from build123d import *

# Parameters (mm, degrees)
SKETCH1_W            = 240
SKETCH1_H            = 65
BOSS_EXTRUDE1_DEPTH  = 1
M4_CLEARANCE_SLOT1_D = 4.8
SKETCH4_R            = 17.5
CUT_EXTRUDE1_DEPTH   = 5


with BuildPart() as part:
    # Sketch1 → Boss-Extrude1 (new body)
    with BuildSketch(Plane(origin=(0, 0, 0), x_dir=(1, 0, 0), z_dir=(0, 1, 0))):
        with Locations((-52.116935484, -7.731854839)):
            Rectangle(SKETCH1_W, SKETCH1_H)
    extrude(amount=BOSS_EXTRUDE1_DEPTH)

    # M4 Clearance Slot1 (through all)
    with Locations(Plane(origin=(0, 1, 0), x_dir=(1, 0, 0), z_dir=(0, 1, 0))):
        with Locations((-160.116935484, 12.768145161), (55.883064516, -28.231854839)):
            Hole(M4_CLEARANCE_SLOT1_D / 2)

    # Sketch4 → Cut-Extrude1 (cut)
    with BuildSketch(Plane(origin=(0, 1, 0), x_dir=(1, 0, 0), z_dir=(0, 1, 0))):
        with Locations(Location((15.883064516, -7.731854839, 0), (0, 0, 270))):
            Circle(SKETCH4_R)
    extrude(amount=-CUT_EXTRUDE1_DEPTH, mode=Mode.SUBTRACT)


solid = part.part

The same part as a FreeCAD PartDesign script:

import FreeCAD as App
import Part
import Sketcher
Q = App.Units.Quantity


def add_polygon(sketch, points):
    """Adds a closed chain of lines whose ends are joined by coincident constraints."""
    first, n = sketch.GeometryCount, len(points)
    for a, b in zip(points, points[1:] + points[:1]):
        sketch.addGeometry(Part.LineSegment(App.Vector(*a, 0), App.Vector(*b, 0)), False)
    for i in range(n):
        sketch.addConstraint(Sketcher.Constraint("Coincident", first + i, 2, first + (i + 1) % n, 1))

doc = App.newDocument("Part")
body = doc.addObject("PartDesign::Body", "Body")

sketch1 = body.newObject("Sketcher::SketchObject", "Sketch")
sketch1.AttachmentSupport = (doc.getObject("XZ_Plane"), [""])
sketch1.MapMode = "FlatFace"
add_polygon(sketch1, [(-172, -25), (-172, 40), (68, 40), (68, -25)])
sketch1.addConstraint([
    Sketcher.Constraint("Vertical", 0),
    Sketcher.Constraint("Horizontal", 1),
    Sketcher.Constraint("Vertical", 2),
    Sketcher.Constraint("Horizontal", 3),
    Sketcher.Constraint("DistanceX", 1, 1, 1, 2, Q("240 mm")),
    Sketcher.Constraint("DistanceY", 0, 1, 0, 2, Q("65 mm")),
    Sketcher.Constraint("DistanceX", 0, 2, -1, 1, Q("172.116935 mm")),
    Sketcher.Constraint("DistanceY", -1, 1, 0, 2, Q("40.231855 mm")),
])
pad1 = body.newObject("PartDesign::Pad", "Pad")
pad1.Profile = sketch1
pad1.Length = 1
pad1.Reversed = True

sketch2 = body.newObject("Sketcher::SketchObject", "Sketch001")
sketch2.AttachmentSupport = (doc.getObject("XZ_Plane"), [""])
sketch2.MapMode = "FlatFace"
sketch2.AttachmentOffset = App.Placement(App.Vector(0, 0, -1), App.Rotation())
sketch2.addGeometry([
    Part.Circle(App.Vector(-160.1, -12.8, 0), App.Vector(0, 0, 1), 2.4),
    Part.Circle(App.Vector(55.9, 28.2, 0), App.Vector(0, 0, 1), 2.4),
], False)
sketch2.addConstraint([
    Sketcher.Constraint("Equal", 0, 1),
    Sketcher.Constraint("Diameter", 0, Q("4.8 mm")),
    Sketcher.Constraint("DistanceX", 0, 3, 1, 3, Q("216 mm")),
    Sketcher.Constraint("DistanceY", 0, 3, 1, 3, Q("41 mm")),
    Sketcher.Constraint("DistanceX", 0, 3, -1, 1, Q("160.116935 mm")),
    Sketcher.Constraint("DistanceY", 0, 3, -1, 1, Q("12.768145 mm")),
])
doc.recompute()
hole = body.newObject("PartDesign::Hole", "Hole")
hole.Profile = sketch2
hole.ThreadType = "None"
hole.Diameter = 4.8
hole.DepthType = "ThroughAll"
hole.Reversed = True

sketch3 = body.newObject("Sketcher::SketchObject", "Sketch002")
sketch3.AttachmentSupport = (doc.getObject("XZ_Plane"), [""])
sketch3.MapMode = "FlatFace"
sketch3.AttachmentOffset = App.Placement(App.Vector(0, 0, -1), App.Rotation())
sketch3.addGeometry(Part.Circle(App.Vector(16, 8, 0), App.Vector(0, 0, 1), 18), False)
sketch3.addConstraint([
    Sketcher.Constraint("Diameter", 0, Q("35 mm")),
    Sketcher.Constraint("DistanceX", -1, 1, 0, 3, Q("15.883065 mm")),
    Sketcher.Constraint("DistanceY", -1, 1, 0, 3, Q("7.731855 mm")),
])
pocket1 = body.newObject("PartDesign::Pocket", "Pocket")
pocket1.Profile = sketch3
pocket1.Length = 5
pocket1.Reversed = True

doc.recompute()
